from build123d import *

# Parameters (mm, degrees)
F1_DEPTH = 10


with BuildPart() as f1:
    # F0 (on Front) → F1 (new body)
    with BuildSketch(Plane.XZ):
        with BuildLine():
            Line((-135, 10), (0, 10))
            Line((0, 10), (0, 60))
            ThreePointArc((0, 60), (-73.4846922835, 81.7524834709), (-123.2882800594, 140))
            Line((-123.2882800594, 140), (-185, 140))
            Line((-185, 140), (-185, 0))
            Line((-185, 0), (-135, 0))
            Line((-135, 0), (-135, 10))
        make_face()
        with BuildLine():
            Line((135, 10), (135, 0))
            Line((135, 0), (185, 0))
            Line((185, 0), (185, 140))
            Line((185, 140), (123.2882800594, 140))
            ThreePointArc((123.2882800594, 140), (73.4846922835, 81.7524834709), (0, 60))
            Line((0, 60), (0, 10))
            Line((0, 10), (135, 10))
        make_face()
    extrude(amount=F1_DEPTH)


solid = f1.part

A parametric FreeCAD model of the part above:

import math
import FreeCAD as App
import Part
import Sketcher
Q = App.Units.Quantity

doc = App.newDocument("Part")
params = doc.addObject("Spreadsheet::Sheet", "Params")
for row, (alias, value) in enumerate([
    ("sketch1_radius", "135 mm"),
    ("sketch1_width", "270 mm"),
    ("sketch1_width2", "50 mm"),
    ("sketch1_height", "10 mm"),
    ("sketch1_height2", "140 mm"),
    ("pad1_length", "10 mm"),
], start=1):
    params.set(f"A{row}", alias)
    params.set(f"B{row}", "=" + value)
    params.setAlias(f"B{row}", alias)

body = doc.addObject("PartDesign::Body", "Body")

# Sketch on XZ plane
sketch1 = body.newObject("Sketcher::SketchObject", "Sketch")
sketch1.AttachmentSupport = (doc.getObject("XZ_Plane"), [""])
sketch1.MapMode = "FlatFace"
sketch1.addGeometry([
    Part.LineSegment(App.Vector(-135, 10, 0), App.Vector(135, 10, 0)),  # 0
    Part.LineSegment(App.Vector(135, 10, 0), App.Vector(135, 0, 0)),  # 1
    Part.LineSegment(App.Vector(135, 0, 0), App.Vector(185, 0, 0)),  # 2
    Part.LineSegment(App.Vector(185, 0, 0), App.Vector(185, 140, 0)),  # 3
    Part.LineSegment(App.Vector(185, 140, 0), App.Vector(123.28828, 140, 0)),  # 4
    Part.ArcOfCircle(Part.Circle(App.Vector(0, 195, 0), App.Vector(0, 0, 1), 135), math.radians(-90), math.radians(-24.042076)),  # 5
    Part.ArcOfCircle(Part.Circle(App.Vector(0, 195, 0), App.Vector(0, 0, 1), 135), math.radians(-155.957924), math.radians(-90)),  # 6
    Part.LineSegment(App.Vector(-123.28828, 140, 0), App.Vector(-185, 140, 0)),  # 7
    Part.LineSegment(App.Vector(-185, 140, 0), App.Vector(-185, 0, 0)),  # 8
    Part.LineSegment(App.Vector(-185, 0, 0), App.Vector(-135, 0, 0)),  # 9
    Part.LineSegment(App.Vector(-135, 0, 0), App.Vector(-135, 10, 0)),  # 10
], False)
sketch1.addConstraint([
    Sketcher.Constraint("Coincident", 0, 2, 1, 1),
    Sketcher.Constraint("Coincident", 1, 2, 2, 1),
    Sketcher.Constraint("Coincident", 2, 2, 3, 1),
    Sketcher.Constraint("Coincident", 3, 2, 4, 1),
    Sketcher.Constraint("Coincident", 4, 2, 5, 2),
    Sketcher.Constraint("Tangent", 5, 1, 6, 2),
    Sketcher.Constraint("Coincident", 6, 1, 7, 1),
    Sketcher.Constraint("Coincident", 7, 2, 8, 1),
    Sketcher.Constraint("Coincident", 8, 2, 9, 1),
    Sketcher.Constraint("Coincident", 9, 2, 10, 1),
    Sketcher.Constraint("Coincident", 10, 2, 0, 1),
    Sketcher.Constraint("Horizontal", 0),
    Sketcher.Constraint("Vertical", 1),
    Sketcher.Constraint("Horizontal", 2),
    Sketcher.Constraint("Vertical", 3),
    Sketcher.Constraint("Horizontal", 4),
    Sketcher.Constraint("Horizontal", 7),
    Sketcher.Constraint("Vertical", 8),
    Sketcher.Constraint("Horizontal", 9),
    Sketcher.Constraint("Vertical", 10),
    Sketcher.Constraint("Equal", 5, 6),
    Sketcher.Constraint("Symmetric", 2, 2, 8, 2, -1, 1),
    Sketcher.Constraint("Symmetric", 4, 2, 6, 1, -2),
    Sketcher.Constraint("Symmetric", 1, 2, 9, 2, -2),
    Sketcher.Constraint("PointOnObject", 5, 1, -2),
    Sketcher.Constraint("Radius", 5, Q("135 mm")),
    Sketcher.Constraint("DistanceX", 0, 1, 0, 2, Q("270 mm")),
    Sketcher.Constraint("DistanceX", 2, 1, 2, 2, Q("50 mm")),
    Sketcher.Constraint("DistanceY", 1, 2, 1, 1, Q("10 mm")),
    Sketcher.Constraint("DistanceY", 3, 1, 3, 2, Q("140 mm")),
    Sketcher.Constraint("DistanceY", -1, 1, 5, 3, Q("195 mm")),
])
sketch1.setExpression("Constraints[25]", "Params.sketch1_radius")
sketch1.setExpression("Constraints[26]", "Params.sketch1_width")
sketch1.setExpression("Constraints[27]", "Params.sketch1_width2")
sketch1.setExpression("Constraints[28]", "Params.sketch1_height")
sketch1.setExpression("Constraints[29]", "Params.sketch1_height2")
pad1 = body.newObject("PartDesign::Pad", "Pad")
pad1.Profile = sketch1
pad1.setExpression("Length", "Params.pad1_length")

doc.recompute()
